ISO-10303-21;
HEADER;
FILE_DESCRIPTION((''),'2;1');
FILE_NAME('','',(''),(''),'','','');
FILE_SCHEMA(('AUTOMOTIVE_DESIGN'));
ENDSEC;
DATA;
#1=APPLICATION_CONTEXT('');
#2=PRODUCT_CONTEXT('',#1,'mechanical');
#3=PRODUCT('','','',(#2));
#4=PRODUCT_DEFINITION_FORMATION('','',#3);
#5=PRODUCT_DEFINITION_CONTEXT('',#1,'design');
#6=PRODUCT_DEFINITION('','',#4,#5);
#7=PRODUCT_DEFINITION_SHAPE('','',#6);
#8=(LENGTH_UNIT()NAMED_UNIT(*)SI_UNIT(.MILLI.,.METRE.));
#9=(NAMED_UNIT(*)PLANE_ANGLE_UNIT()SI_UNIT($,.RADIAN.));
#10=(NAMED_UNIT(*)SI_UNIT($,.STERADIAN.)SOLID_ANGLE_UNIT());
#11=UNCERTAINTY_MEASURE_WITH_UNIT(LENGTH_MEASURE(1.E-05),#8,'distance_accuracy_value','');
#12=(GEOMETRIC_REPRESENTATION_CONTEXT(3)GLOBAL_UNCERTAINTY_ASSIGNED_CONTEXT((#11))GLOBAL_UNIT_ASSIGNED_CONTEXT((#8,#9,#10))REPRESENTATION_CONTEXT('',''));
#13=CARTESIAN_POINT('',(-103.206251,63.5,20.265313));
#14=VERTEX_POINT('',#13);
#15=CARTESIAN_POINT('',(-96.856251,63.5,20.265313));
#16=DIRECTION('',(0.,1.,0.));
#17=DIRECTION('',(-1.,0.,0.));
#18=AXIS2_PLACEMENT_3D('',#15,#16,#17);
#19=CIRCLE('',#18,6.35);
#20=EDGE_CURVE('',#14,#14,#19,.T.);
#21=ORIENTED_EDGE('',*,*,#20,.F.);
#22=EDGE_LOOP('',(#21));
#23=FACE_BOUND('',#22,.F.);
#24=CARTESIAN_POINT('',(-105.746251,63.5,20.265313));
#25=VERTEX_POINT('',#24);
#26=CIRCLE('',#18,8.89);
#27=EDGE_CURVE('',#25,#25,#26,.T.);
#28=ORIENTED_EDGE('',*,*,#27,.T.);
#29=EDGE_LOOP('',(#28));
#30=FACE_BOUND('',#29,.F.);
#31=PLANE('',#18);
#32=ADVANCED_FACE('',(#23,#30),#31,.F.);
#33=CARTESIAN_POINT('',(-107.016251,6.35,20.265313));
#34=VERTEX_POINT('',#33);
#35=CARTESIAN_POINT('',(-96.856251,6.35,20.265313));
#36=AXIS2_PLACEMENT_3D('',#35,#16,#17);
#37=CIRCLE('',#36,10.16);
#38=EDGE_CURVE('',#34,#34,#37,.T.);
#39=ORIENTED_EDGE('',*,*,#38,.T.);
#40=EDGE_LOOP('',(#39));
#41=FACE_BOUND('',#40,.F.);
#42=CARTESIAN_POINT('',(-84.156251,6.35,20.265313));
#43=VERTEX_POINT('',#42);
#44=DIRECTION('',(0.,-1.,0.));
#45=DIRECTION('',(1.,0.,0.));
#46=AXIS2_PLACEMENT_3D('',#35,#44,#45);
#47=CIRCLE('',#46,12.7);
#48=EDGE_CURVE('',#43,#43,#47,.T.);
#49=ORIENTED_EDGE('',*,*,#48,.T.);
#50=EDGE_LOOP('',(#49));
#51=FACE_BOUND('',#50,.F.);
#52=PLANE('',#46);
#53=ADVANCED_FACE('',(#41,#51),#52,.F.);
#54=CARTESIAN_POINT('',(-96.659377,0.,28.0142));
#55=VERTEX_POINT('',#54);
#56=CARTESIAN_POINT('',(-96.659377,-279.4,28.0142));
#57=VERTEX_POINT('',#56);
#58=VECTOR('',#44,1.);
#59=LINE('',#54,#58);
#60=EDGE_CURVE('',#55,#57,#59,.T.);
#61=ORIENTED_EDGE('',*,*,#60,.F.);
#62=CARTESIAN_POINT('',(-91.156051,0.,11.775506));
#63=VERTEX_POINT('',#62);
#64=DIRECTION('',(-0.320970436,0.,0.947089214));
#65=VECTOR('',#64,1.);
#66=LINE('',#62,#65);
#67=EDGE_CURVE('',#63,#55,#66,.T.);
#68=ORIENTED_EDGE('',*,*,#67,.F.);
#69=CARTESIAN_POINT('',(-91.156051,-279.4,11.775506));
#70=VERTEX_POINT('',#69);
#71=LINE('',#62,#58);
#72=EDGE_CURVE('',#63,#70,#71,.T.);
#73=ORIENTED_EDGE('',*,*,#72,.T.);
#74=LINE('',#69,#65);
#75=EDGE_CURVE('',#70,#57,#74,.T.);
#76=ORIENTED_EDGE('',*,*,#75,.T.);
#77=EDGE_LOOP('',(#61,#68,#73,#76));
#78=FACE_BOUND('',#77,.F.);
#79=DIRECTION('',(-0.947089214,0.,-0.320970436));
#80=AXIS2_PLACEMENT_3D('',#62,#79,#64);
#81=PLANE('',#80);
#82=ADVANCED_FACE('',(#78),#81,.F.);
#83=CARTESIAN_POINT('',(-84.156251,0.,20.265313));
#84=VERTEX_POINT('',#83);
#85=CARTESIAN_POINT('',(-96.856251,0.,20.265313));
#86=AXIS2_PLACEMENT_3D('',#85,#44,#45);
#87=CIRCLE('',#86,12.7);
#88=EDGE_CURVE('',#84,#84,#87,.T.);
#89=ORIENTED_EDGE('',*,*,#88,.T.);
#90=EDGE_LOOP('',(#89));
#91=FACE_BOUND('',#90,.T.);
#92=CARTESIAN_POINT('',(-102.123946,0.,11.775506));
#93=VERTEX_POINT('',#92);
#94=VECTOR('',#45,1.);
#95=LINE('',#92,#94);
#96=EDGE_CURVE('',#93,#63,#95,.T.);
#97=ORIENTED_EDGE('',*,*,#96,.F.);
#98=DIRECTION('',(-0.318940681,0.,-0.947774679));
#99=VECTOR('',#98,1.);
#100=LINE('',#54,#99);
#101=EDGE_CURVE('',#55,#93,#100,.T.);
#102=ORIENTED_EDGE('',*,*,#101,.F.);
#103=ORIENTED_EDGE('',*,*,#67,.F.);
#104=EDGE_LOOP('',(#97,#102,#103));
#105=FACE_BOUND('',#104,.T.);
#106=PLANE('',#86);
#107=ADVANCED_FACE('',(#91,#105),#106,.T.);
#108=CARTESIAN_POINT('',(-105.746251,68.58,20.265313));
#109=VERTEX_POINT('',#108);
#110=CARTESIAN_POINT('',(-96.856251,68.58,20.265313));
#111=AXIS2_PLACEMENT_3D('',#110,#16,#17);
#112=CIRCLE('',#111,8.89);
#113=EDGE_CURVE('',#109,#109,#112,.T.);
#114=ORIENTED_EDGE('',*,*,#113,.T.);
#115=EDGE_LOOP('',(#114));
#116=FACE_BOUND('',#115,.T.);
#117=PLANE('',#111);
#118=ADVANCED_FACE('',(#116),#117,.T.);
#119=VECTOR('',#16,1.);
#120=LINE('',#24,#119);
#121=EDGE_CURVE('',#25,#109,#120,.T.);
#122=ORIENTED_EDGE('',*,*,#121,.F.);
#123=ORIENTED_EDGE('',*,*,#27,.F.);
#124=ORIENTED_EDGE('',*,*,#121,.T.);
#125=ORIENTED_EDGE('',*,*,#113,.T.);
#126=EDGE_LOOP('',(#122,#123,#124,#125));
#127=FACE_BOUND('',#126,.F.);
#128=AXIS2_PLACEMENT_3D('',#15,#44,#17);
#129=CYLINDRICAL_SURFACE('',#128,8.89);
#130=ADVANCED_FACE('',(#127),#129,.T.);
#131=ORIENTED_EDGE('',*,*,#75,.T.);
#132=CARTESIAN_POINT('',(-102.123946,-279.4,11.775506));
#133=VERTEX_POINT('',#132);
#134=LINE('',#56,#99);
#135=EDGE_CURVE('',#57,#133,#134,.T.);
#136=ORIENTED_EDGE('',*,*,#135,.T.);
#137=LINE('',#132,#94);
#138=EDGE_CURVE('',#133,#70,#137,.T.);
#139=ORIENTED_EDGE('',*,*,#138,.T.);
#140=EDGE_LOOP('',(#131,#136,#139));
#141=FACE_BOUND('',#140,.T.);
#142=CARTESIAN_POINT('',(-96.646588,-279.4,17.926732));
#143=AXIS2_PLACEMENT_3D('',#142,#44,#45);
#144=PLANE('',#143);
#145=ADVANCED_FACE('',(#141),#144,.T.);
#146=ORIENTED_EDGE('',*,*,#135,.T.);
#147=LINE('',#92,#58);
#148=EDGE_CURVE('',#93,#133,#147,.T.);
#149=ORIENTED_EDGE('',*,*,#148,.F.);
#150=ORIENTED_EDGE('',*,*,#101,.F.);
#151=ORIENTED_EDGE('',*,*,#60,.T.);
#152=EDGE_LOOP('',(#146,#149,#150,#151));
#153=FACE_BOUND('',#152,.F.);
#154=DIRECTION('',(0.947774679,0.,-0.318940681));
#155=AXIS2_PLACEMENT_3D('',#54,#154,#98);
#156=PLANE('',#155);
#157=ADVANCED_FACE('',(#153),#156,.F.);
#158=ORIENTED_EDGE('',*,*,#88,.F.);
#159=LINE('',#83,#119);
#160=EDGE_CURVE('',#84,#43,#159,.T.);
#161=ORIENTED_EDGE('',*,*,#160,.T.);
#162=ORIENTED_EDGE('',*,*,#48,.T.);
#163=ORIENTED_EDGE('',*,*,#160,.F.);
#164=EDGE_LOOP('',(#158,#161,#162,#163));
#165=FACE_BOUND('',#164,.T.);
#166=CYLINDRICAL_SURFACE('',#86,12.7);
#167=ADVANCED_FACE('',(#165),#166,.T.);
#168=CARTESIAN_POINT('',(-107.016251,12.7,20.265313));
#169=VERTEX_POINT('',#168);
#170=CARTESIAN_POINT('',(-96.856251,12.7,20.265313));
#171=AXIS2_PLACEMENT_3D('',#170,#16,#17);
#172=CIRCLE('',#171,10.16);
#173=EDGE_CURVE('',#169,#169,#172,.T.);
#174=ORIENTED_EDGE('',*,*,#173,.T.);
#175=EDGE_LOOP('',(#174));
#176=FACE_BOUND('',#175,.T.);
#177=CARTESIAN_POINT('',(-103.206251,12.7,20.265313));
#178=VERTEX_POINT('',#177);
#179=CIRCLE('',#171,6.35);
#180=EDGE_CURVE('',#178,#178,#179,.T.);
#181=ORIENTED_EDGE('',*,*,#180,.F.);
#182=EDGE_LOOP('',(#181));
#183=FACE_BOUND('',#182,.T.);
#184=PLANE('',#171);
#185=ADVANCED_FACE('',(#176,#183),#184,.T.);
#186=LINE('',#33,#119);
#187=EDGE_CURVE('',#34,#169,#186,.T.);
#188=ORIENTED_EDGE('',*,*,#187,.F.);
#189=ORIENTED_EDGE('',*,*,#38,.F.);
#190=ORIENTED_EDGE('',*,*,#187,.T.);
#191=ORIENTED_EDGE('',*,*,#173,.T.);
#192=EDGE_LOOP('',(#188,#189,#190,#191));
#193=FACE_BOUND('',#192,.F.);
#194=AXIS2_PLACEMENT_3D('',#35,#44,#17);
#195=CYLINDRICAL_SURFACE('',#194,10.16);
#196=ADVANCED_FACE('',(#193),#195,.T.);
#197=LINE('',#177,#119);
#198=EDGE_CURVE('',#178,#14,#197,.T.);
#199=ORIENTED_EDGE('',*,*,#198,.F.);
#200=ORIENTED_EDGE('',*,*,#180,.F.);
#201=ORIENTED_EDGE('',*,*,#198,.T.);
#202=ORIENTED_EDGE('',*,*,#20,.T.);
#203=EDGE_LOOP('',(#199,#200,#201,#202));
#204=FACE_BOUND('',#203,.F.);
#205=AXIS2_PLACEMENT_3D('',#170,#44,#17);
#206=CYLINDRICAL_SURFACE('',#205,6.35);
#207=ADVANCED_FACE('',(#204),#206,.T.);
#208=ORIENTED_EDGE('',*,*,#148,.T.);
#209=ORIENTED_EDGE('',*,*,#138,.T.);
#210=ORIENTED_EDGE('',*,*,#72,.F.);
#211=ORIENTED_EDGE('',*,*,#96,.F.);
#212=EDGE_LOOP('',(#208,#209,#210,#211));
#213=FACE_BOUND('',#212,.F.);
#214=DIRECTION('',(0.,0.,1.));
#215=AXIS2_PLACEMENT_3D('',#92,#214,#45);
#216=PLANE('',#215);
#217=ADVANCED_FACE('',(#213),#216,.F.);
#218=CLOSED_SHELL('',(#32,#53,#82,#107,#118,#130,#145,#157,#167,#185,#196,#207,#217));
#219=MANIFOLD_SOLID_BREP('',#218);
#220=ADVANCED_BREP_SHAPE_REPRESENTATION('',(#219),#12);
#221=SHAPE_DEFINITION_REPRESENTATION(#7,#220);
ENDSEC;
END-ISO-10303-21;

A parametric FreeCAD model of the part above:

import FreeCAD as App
import Part
import Sketcher

V = App.Vector
Q = App.Units.Quantity

doc = App.newDocument("Part")
body = doc.addObject("PartDesign::Body", "Body")

# Sketch on XZ plane
sketch1 = body.newObject("Sketcher::SketchObject", "Sketch")
sketch1.AttachmentSupport = (doc.getObject("XZ_Plane"), [""])
sketch1.MapMode = "FlatFace"
sketch1.addGeometry(Part.Circle(V(-97, 20, 0), V(0, 0, 1), 13), False)
sketch1.addConstraint(Sketcher.Constraint("Diameter", 0, Q("1 in")))
sketch1.addConstraint(Sketcher.Constraint("DistanceX", 0, 3, -1, 1, Q("96.856251 mm")))
sketch1.addConstraint(Sketcher.Constraint("DistanceY", -1, 1, 0, 3, Q("20.265313 mm")))
pad1 = body.newObject("PartDesign::Pad", "Pad")
pad1.Profile = sketch1
pad1.Length = Q("0.25 in")
pad1.Reversed = True

# Sketch on XZ plane
sketch2 = body.newObject("Sketcher::SketchObject", "Sketch001")
sketch2.AttachmentSupport = (doc.getObject("XZ_Plane"), [""])
sketch2.MapMode = "FlatFace"
sketch2.AttachmentOffset = App.Placement(V(0, 0, -0.25 * 25.4), App.Rotation())
sketch2.addGeometry(Part.Circle(V(-97, 20, 0), V(0, 0, 1), 10), False)
sketch2.addConstraint(Sketcher.Constraint("Diameter", 0, Q("0.8 in")))
sketch2.addConstraint(Sketcher.Constraint("DistanceX", 0, 3, -1, 1, Q("96.856251 mm")))
sketch2.addConstraint(Sketcher.Constraint("DistanceY", -1, 1, 0, 3, Q("20.265313 mm")))
pad2 = body.newObject("PartDesign::Pad", "Pad001")
pad2.Profile = sketch2
pad2.Length = Q("0.25 in")
pad2.Reversed = True

# Sketch on XZ plane
sketch3 = body.newObject("Sketcher::SketchObject", "Sketch002")
sketch3.AttachmentSupport = (doc.getObject("XZ_Plane"), [""])
sketch3.MapMode = "FlatFace"
sketch3.AttachmentOffset = App.Placement(V(0, 0, -0.5 * 25.4), App.Rotation())
sketch3.addGeometry(Part.Circle(V(-97, 20, 0), V(0, 0, 1), 6), False)
sketch3.addConstraint(Sketcher.Constraint("Diameter", 0, Q("0.5 in")))
sketch3.addConstraint(Sketcher.Constraint("DistanceX", 0, 3, -1, 1, Q("96.856251 mm")))
sketch3.addConstraint(Sketcher.Constraint("DistanceY", -1, 1, 0, 3, Q("20.265313 mm")))
pad3 = body.newObject("PartDesign::Pad", "Pad002")
pad3.Profile = sketch3
pad3.Length = Q("2 in")
pad3.Reversed = True

# Sketch on XZ plane
sketch4 = body.newObject("Sketcher::SketchObject", "Sketch003")
sketch4.AttachmentSupport = (doc.getObject("XZ_Plane"), [""])
sketch4.MapMode = "FlatFace"
sketch4.AttachmentOffset = App.Placement(V(0, 0, -2.5 * 25.4), App.Rotation())
sketch4.addGeometry(Part.Circle(V(-97, 20, 0), V(0, 0, 1), 9), False)
sketch4.addConstraint(Sketcher.Constraint("Diameter", 0, Q("0.7 in")))
sketch4.addConstraint(Sketcher.Constraint("DistanceX", 0, 3, -1, 1, Q("96.856251 mm")))
sketch4.addConstraint(Sketcher.Constraint("DistanceY", -1, 1, 0, 3, Q("20.265313 mm")))
pad4 = body.newObject("PartDesign::Pad", "Pad003")
pad4.Profile = sketch4
pad4.Length = Q("0.2 in")
pad4.Reversed = True

# Sketch on XZ plane
sketch5 = body.newObject("Sketcher::SketchObject", "Sketch004")
sketch5.AttachmentSupport = (doc.getObject("XZ_Plane"), [""])
sketch5.MapMode = "FlatFace"
sketch5.addGeometry(Part.LineSegment(V(-97, 28, 0), V(-102, 12, 0)), False)
sketch5.addGeometry(Part.LineSegment(V(-102, 12, 0), V(-91, 12, 0)), False)
sketch5.addGeometry(Part.LineSegment(V(-91, 12, 0), V(-97, 28, 0)), False)
sketch5.addConstraint(Sketcher.Constraint("Coincident", 0, 2, 1, 1))
sketch5.addConstraint(Sketcher.Constraint("Coincident", 1, 2, 2, 1))
sketch5.addConstraint(Sketcher.Constraint("Coincident", 2, 2, 0, 1))
sketch5.addConstraint(Sketcher.Constraint("Horizontal", 1))
sketch5.addConstraint(Sketcher.Constraint("DistanceY", -1, 1, 2, 2, Q("28.0142 mm")))
sketch5.addConstraint(Sketcher.Constraint("DistanceX", 1, 1, 1, 2, Q("10.967895 mm")))
sketch5.addConstraint(Sketcher.Constraint("DistanceX", 1, 2, -1, 1, Q("91.156051 mm")))
sketch5.addConstraint(Sketcher.Constraint("DistanceX", 0, 2, 2, 2, Q("5.464569 mm")))
sketch5.addConstraint(Sketcher.Constraint("Distance", 0, Q("17.133496 mm")))
pad5 = body.newObject("PartDesign::Pad", "Pad004")
pad5.Profile = sketch5
pad5.Length = Q("11 in")

doc.recompute()
